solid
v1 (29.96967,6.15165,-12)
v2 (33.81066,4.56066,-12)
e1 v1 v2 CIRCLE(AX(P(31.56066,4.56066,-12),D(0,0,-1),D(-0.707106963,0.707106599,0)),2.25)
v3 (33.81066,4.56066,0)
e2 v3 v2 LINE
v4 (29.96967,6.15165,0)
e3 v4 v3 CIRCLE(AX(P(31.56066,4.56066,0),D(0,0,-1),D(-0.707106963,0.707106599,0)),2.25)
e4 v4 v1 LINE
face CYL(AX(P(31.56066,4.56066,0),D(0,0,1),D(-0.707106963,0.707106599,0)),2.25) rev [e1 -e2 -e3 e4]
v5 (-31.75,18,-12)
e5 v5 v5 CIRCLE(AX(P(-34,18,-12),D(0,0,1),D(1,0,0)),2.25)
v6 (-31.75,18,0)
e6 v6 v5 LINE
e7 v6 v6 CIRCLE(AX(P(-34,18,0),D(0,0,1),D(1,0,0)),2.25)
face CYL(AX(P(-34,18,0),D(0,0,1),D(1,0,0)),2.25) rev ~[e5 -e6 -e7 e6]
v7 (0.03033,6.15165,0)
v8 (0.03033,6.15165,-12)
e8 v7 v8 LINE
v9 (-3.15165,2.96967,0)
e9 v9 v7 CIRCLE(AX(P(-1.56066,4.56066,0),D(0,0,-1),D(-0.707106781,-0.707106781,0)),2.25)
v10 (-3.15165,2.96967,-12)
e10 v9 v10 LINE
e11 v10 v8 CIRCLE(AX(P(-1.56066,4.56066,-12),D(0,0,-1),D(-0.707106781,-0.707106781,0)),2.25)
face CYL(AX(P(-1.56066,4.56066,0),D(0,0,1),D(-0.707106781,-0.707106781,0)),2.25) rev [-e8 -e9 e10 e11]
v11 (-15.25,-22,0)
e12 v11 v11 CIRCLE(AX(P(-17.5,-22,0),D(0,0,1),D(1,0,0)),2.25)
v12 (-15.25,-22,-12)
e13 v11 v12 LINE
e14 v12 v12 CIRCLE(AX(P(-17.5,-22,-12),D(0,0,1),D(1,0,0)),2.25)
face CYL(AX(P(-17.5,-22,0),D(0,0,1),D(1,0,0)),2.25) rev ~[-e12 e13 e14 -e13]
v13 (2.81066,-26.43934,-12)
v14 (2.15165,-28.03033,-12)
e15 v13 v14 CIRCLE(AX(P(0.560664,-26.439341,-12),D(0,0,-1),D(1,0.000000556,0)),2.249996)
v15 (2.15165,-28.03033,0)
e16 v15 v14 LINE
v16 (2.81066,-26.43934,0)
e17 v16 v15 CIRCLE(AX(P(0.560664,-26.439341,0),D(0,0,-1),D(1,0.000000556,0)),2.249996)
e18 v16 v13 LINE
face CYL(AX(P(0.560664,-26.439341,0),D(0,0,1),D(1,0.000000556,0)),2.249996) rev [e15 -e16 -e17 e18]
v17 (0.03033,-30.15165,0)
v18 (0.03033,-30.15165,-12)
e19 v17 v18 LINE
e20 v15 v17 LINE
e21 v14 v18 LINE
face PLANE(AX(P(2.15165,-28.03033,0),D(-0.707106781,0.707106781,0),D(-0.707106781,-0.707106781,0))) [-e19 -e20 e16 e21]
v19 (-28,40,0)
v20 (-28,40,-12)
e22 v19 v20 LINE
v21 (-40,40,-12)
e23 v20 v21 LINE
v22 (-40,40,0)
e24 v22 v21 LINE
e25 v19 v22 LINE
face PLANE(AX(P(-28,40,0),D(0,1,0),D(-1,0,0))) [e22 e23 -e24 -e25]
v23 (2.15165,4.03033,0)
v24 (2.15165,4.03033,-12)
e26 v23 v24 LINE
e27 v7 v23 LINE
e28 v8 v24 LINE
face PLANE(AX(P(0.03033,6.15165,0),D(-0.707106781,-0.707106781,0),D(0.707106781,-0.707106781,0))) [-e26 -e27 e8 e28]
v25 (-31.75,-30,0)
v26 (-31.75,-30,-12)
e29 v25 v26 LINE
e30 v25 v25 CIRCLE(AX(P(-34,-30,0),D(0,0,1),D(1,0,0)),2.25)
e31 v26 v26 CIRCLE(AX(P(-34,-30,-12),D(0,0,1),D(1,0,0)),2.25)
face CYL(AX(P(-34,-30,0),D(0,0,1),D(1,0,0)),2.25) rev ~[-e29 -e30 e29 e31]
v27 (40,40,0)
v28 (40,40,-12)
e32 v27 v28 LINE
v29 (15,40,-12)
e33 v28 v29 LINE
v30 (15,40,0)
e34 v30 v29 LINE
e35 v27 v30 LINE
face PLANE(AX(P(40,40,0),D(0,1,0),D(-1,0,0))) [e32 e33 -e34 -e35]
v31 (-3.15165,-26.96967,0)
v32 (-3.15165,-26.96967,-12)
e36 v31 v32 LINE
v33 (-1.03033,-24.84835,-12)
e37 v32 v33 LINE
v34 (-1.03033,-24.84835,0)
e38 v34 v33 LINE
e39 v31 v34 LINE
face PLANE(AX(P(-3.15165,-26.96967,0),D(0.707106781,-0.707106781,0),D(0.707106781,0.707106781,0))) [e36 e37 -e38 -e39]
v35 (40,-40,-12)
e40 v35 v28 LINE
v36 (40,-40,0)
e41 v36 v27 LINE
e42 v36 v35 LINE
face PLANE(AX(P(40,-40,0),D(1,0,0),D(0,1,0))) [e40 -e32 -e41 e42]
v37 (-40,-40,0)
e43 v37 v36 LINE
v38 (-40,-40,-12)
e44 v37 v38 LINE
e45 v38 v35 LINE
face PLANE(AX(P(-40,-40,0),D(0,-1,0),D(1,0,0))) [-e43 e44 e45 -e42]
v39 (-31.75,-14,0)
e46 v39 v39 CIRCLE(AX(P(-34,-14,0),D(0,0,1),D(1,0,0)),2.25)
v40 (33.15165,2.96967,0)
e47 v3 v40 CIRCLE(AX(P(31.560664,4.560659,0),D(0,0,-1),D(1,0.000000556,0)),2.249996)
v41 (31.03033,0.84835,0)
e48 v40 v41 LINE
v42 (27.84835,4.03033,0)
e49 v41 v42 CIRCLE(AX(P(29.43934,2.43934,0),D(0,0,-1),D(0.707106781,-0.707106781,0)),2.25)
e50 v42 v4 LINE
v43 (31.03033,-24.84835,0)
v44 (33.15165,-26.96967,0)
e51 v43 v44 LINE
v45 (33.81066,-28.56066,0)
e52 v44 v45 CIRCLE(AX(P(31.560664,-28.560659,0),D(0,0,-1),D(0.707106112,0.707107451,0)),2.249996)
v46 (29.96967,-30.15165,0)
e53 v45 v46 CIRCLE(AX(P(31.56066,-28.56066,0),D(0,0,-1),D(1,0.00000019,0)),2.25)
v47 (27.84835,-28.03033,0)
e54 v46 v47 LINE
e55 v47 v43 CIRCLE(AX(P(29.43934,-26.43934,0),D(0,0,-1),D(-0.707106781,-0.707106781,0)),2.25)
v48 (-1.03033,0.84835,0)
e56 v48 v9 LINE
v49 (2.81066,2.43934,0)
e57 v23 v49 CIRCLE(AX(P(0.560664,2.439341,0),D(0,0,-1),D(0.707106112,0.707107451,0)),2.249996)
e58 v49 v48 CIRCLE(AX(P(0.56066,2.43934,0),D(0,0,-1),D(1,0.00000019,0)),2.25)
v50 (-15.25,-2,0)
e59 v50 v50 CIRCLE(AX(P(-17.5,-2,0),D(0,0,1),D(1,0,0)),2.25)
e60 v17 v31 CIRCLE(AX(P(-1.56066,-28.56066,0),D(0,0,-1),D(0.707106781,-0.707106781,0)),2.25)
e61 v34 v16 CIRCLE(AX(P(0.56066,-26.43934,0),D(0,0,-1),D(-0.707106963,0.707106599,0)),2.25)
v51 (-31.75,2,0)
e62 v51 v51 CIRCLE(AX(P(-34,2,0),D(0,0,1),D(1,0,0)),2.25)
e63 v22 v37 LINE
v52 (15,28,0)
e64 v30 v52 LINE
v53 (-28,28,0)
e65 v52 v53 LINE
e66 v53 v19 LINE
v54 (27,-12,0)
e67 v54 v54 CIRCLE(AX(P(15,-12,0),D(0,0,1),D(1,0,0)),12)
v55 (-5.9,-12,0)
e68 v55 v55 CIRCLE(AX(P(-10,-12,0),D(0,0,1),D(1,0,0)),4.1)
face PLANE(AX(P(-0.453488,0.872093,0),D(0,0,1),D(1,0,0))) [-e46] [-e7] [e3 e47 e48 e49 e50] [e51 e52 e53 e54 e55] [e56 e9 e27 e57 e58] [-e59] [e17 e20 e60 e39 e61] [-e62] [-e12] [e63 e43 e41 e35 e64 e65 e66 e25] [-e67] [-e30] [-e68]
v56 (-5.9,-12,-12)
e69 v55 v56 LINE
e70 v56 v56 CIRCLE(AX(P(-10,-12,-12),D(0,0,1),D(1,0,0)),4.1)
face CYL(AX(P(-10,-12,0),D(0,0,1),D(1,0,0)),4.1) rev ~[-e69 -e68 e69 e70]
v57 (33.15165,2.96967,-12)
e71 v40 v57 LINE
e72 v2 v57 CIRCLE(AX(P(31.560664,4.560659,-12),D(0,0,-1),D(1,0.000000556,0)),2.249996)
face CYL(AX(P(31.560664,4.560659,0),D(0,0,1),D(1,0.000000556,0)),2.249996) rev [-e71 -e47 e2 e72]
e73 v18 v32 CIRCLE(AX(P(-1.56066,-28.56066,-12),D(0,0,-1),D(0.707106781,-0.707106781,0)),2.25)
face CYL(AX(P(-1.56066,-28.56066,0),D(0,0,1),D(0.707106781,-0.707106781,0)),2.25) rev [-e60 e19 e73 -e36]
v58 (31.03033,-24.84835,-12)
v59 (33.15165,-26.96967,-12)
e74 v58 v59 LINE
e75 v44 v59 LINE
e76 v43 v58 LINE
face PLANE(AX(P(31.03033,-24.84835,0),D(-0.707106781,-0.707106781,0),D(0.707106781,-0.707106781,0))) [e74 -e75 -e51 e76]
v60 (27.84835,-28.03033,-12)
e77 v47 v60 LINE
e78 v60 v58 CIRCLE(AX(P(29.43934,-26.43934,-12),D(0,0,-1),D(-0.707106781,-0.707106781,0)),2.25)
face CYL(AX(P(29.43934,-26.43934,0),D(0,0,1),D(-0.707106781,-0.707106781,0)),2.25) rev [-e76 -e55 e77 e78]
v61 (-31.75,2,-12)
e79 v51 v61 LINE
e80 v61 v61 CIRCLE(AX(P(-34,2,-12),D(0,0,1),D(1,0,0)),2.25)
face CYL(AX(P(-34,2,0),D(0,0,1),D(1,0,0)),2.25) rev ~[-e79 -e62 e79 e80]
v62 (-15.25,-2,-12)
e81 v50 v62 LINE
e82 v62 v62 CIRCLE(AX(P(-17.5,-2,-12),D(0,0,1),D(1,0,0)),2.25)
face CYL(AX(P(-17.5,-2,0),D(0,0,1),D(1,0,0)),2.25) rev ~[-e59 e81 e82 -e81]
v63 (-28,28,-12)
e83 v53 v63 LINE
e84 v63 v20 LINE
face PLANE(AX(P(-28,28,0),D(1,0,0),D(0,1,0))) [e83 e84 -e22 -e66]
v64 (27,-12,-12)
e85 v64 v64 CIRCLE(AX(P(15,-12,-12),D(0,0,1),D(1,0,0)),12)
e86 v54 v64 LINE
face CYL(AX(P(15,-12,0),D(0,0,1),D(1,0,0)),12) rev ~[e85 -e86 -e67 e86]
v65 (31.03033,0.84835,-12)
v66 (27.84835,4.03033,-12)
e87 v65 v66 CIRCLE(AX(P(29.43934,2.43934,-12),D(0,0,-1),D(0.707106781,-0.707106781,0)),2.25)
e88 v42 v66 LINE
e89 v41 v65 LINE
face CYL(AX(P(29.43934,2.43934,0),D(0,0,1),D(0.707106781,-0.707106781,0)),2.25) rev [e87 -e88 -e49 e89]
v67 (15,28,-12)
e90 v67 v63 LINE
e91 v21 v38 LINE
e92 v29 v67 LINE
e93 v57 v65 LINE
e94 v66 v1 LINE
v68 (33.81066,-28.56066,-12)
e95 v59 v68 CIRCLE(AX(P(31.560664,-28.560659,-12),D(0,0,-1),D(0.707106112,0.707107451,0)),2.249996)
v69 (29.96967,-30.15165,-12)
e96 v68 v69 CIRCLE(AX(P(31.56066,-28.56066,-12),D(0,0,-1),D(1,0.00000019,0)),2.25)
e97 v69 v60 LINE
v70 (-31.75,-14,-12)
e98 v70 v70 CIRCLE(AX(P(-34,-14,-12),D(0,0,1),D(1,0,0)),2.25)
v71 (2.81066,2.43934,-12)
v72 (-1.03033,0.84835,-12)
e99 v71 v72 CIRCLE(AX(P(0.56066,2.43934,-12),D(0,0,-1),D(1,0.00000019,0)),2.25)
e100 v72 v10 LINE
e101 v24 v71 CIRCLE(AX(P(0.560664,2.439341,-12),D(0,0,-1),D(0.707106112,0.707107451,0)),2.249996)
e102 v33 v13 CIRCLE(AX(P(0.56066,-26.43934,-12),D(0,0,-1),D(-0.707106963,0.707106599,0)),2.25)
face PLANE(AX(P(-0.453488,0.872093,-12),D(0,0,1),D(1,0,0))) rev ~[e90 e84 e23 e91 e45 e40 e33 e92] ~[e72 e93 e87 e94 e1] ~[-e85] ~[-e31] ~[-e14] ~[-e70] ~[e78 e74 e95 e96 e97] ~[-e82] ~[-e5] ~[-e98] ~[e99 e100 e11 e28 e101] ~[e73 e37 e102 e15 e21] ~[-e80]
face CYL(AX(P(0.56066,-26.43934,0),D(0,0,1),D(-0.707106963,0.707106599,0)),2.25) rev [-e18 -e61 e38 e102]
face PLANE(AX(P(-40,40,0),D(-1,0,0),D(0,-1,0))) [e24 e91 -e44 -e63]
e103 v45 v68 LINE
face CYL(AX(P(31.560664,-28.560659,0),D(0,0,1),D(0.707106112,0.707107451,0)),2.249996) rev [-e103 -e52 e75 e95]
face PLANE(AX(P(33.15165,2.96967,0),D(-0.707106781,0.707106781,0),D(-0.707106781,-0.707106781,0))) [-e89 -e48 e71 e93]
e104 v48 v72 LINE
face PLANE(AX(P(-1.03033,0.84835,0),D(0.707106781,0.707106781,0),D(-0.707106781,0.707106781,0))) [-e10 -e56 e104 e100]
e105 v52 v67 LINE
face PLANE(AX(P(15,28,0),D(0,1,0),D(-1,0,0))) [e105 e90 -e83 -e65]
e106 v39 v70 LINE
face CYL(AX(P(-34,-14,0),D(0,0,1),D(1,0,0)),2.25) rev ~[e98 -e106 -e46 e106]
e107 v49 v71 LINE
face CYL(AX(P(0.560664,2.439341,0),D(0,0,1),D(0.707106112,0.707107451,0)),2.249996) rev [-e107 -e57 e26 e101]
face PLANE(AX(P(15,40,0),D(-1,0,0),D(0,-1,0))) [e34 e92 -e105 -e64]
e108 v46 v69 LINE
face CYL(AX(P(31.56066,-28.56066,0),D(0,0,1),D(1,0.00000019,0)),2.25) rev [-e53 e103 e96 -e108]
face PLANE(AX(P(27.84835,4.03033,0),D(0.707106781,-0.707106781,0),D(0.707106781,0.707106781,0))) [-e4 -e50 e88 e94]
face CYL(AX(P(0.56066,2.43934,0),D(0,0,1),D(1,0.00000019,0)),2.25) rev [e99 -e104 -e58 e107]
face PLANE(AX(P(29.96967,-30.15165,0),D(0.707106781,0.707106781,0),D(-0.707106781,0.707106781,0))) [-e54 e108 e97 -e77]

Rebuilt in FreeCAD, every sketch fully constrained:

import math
import FreeCAD as App
import Part
import Sketcher
from FreeCAD import Vector
Q = App.Units.Quantity


def add_polygon(sketch, points):
    """Adds a closed chain of lines whose ends are joined by coincident constraints."""
    first, n = sketch.GeometryCount, len(points)
    for a, b in zip(points, points[1:] + points[:1]):
        sketch.addGeometry(Part.LineSegment(App.Vector(*a, 0), App.Vector(*b, 0)), False)
    for i in range(n):
        sketch.addConstraint(Sketcher.Constraint("Coincident", first + i, 2, first + (i + 1) % n, 1))

doc = App.newDocument("Part")
params = doc.addObject("Spreadsheet::Sheet", "Params")
for row, (alias, value) in enumerate([
    ("sketch1_diameter", "24 mm"),
    ("sketch1_diameter2", "4.5 mm"),
    ("sketch1_diameter3", "8.2 mm"),
    ("sketch1_width", "80 mm"),
    ("sketch1_width2", "25 mm"),
    ("pad1_length", "12 mm"),
], start=1):
    params.set(f"A{row}", alias)
    params.set(f"B{row}", "=" + value)
    params.setAlias(f"B{row}", alias)

body = doc.addObject("PartDesign::Body", "Body")

sketch1 = body.newObject("Sketcher::SketchObject", "Sketch")
sketch1.AttachmentSupport = (doc.getObject("XY_Plane"), [""])
sketch1.MapMode = "FlatFace"
add_polygon(sketch1, [(-40, 40), (-40, -40), (40, -40), (40, 40), (15, 40), (15, 28), (-28, 28), (-28, 40)])
sketch1.addGeometry(Part.Circle(Vector(-34, -30, 0), Vector(0, 0, 1), 2.2), False)
sketch1.addGeometry(Part.Circle(Vector(-17.5, -22, 0), Vector(0, 0, 1), 2.2), False)
sketch1.addGeometry(Part.Circle(Vector(-34, -14, 0), Vector(0, 0, 1), 2.2), False)
sketch1.addGeometry(Part.Circle(Vector(-10, -12, 0), Vector(0, 0, 1), 4.1), False)
sketch1.addGeometry(Part.LineSegment(Vector(-3.2, -27, 0), Vector(-1, -24.8, 0)), False)
sketch1.addGeometry(Part.ArcOfCircle(Part.Circle(Vector(0.6, -26.4, 0), Vector(0, 0, 1), 2.2), math.radians(0), math.radians(135)), False)
sketch1.addGeometry(Part.ArcOfCircle(Part.Circle(Vector(0.6, -26.4, 0), Vector(0, 0, 1), 2.2), math.radians(-45), math.radians(0)), False)
sketch1.addGeometry(Part.LineSegment(Vector(2.2, -28, 0), Vector(0, -30.2, 0)), False)
sketch1.addGeometry(Part.ArcOfCircle(Part.Circle(Vector(-1.6, -28.6, 0), Vector(0, 0, 1), 2.2), math.radians(135), math.radians(315)), False)
sketch1.addGeometry(Part.ArcOfCircle(Part.Circle(Vector(31.6, -28.6, 0), Vector(0, 0, 1), 2.2), math.radians(0), math.radians(45)), False)
sketch1.addGeometry(Part.ArcOfCircle(Part.Circle(Vector(31.6, -28.6, 0), Vector(0, 0, 1), 2.2), math.radians(-135), math.radians(0)), False)
sketch1.addGeometry(Part.LineSegment(Vector(30, -30.2, 0), Vector(27.8, -28, 0)), False)
sketch1.addGeometry(Part.ArcOfCircle(Part.Circle(Vector(29.4, -26.4, 0), Vector(0, 0, 1), 2.2), math.radians(45), math.radians(225)), False)
sketch1.addGeometry(Part.LineSegment(Vector(31, -24.8, 0), Vector(33.2, -27, 0)), False)
sketch1.addGeometry(Part.Circle(Vector(15, -12, 0), Vector(0, 0, 1), 12), False)
sketch1.addGeometry(Part.Circle(Vector(-34, 2, 0), Vector(0, 0, 1), 2.2), False)
sketch1.addGeometry(Part.Circle(Vector(-17.5, -2, 0), Vector(0, 0, 1), 2.2), False)
sketch1.addGeometry(Part.Circle(Vector(-34, 18, 0), Vector(0, 0, 1), 2.2), False)
sketch1.addGeometry(Part.LineSegment(Vector(-1, 0.8, 0), Vector(-3.2, 3, 0)), False)
sketch1.addGeometry(Part.ArcOfCircle(Part.Circle(Vector(-1.6, 4.6, 0), Vector(0, 0, 1), 2.2), math.radians(45), math.radians(225)), False)
sketch1.addGeometry(Part.LineSegment(Vector(0, 6.2, 0), Vector(2.2, 4, 0)), False)
sketch1.addGeometry(Part.ArcOfCircle(Part.Circle(Vector(0.6, 2.4, 0), Vector(0, 0, 1), 2.2), math.radians(0), math.radians(45)), False)
sketch1.addGeometry(Part.ArcOfCircle(Part.Circle(Vector(0.6, 2.4, 0), Vector(0, 0, 1), 2.2), math.radians(-135), math.radians(0)), False)
sketch1.addGeometry(Part.LineSegment(Vector(27.8, 4, 0), Vector(30, 6.2, 0)), False)
sketch1.addGeometry(Part.ArcOfCircle(Part.Circle(Vector(31.6, 4.6, 0), Vector(0, 0, 1), 2.2), math.radians(0), math.radians(135)), False)
sketch1.addGeometry(Part.ArcOfCircle(Part.Circle(Vector(31.6, 4.6, 0), Vector(0, 0, 1), 2.2), math.radians(-45), math.radians(0)), False)
sketch1.addGeometry(Part.LineSegment(Vector(33.2, 3, 0), Vector(31, 0.8, 0)), False)
sketch1.addGeometry(Part.ArcOfCircle(Part.Circle(Vector(29.4, 2.4, 0), Vector(0, 0, 1), 2.2), math.radians(135), math.radians(315)), False)
sketch1.addConstraint([
    Sketcher.Constraint("Tangent", 12, 2, 13, 2),
    Sketcher.Constraint("Tangent", 13, 1, 14, 2),
    Sketcher.Constraint("Tangent", 14, 1, 15, 1),
    Sketcher.Constraint("Tangent", 15, 2, 16, 2),
    Sketcher.Constraint("Tangent", 16, 1, 12, 1),
    Sketcher.Constraint("Tangent", 17, 1, 18, 2),
    Sketcher.Constraint("Tangent", 18, 1, 19, 1),
    Sketcher.Constraint("Tangent", 19, 2, 20, 2),
    Sketcher.Constraint("Tangent", 20, 1, 21, 1),
    Sketcher.Constraint("Tangent", 21, 2, 17, 2),
    Sketcher.Constraint("Tangent", 26, 2, 27, 2),
    Sketcher.Constraint("Tangent", 27, 1, 28, 1),
    Sketcher.Constraint("Tangent", 28, 2, 29, 2),
    Sketcher.Constraint("Tangent", 29, 1, 30, 2),
    Sketcher.Constraint("Tangent", 30, 1, 26, 1),
    Sketcher.Constraint("Tangent", 31, 2, 32, 2),
    Sketcher.Constraint("Tangent", 32, 1, 33, 2),
    Sketcher.Constraint("Tangent", 33, 1, 34, 1),
    Sketcher.Constraint("Tangent", 34, 2, 35, 2),
    Sketcher.Constraint("Tangent", 35, 1, 31, 1),
    Sketcher.Constraint("Vertical", 0),
    Sketcher.Constraint("Horizontal", 1),
    Sketcher.Constraint("Vertical", 2),
    Sketcher.Constraint("Horizontal", 3),
    Sketcher.Constraint("Vertical", 4),
    Sketcher.Constraint("Horizontal", 5),
    Sketcher.Constraint("Vertical", 6),
    Sketcher.Constraint("Horizontal", 7),
    Sketcher.Constraint("Equal", 8, 9),
    Sketcher.Constraint("Equal", 9, 10),
    Sketcher.Constraint("Equal", 10, 13),
    Sketcher.Constraint("Equal", 13, 16),
    Sketcher.Constraint("Equal", 14, 17),
    Sketcher.Constraint("Equal", 16, 18),
    Sketcher.Constraint("Equal", 18, 20),
    Sketcher.Constraint("Equal", 20, 23),
    Sketcher.Constraint("Equal", 23, 24),
    Sketcher.Constraint("Equal", 24, 25),
    Sketcher.Constraint("Equal", 25, 27),
    Sketcher.Constraint("Equal", 17, 29),
    Sketcher.Constraint("Equal", 27, 30),
    Sketcher.Constraint("Equal", 30, 32),
    Sketcher.Constraint("Equal", 29, 33),
    Sketcher.Constraint("Equal", 32, 35),
    Sketcher.Constraint("Symmetric", 0, 2, 2, 2, -1, 1),
    Sketcher.Constraint("Parallel", 12, 15),
    Sketcher.Constraint("Perpendicular", 15, 19),
    Sketcher.Constraint("Parallel", 21, 26),
    Sketcher.Constraint("Perpendicular", 28, 31),
    Sketcher.Constraint("Horizontal", 16, 3, 17, 3),
    Sketcher.Constraint("Horizontal", 14, 3, 20, 3),
    Sketcher.Constraint("Horizontal", 11, 3, 22, 3),
    Sketcher.Constraint("Horizontal", 27, 3, 32, 3),
    Sketcher.Constraint("Horizontal", 30, 3, 35, 3),
    Sketcher.Constraint("Horizontal", 3, 2, 6, 2),
    Sketcher.Constraint("Horizontal", 20, 3, 13, 1),
    Sketcher.Constraint("Horizontal", 18, 3, 17, 1),
    Sketcher.Constraint("Horizontal", 15, 2, 18, 1),
    Sketcher.Constraint("Horizontal", 35, 3, 29, 1),
    Sketcher.Constraint("Horizontal", 33, 3, 32, 1),
    Sketcher.Constraint("Vertical", 8, 3, 10, 3),
    Sketcher.Constraint("Vertical", 10, 3, 23, 3),
    Sketcher.Constraint("Vertical", 9, 3, 24, 3),
    Sketcher.Constraint("Vertical", 23, 3, 25, 3),
    Sketcher.Constraint("Vertical", 16, 3, 27, 3),
    Sketcher.Constraint("Vertical", 14, 3, 29, 3),
    Sketcher.Constraint("Vertical", 18, 3, 32, 3),
    Sketcher.Constraint("Vertical", 22, 3, 3, 2),
    Sketcher.Constraint("Equal", 1, 0),
    Sketcher.Constraint("Equal", 7, 4),
    Sketcher.Constraint("Diameter", 22, Q("24 mm")),
    Sketcher.Constraint("Diameter", 8, Q("4.5 mm")),
    Sketcher.Constraint("Diameter", 11, Q("8.2 mm")),
    Sketcher.Constraint("DistanceX", 1, 1, 1, 2, Q("80 mm")),
    Sketcher.Constraint("DistanceX", 3, 2, 3, 1, Q("25 mm")),
    Sketcher.Constraint("DistanceX", 5, 2, 5, 1, Q("43 mm")),
    Sketcher.Constraint("Distance", 12, Q("3 mm")),
    Sketcher.Constraint("DistanceX", 8, 3, -1, 1, Q("34 mm")),
    Sketcher.Constraint("DistanceY", 8, 3, -1, 1, Q("30 mm")),
    Sketcher.Constraint("DistanceY", 9, 3, -1, 1, Q("22 mm")),
    Sketcher.Constraint("DistanceY", 10, 3, -1, 1, Q("14 mm")),
    Sketcher.Constraint("DistanceX", 11, 3, -1, 1, Q("10 mm")),
    Sketcher.Constraint("DistanceY", 11, 3, -1, 1, Q("12 mm")),
    Sketcher.Constraint("DistanceY", -1, 1, 23, 3, Q("2 mm")),
    Sketcher.Constraint("DistanceY", 24, 3, -1, 1, Q("2 mm")),
    Sketcher.Constraint("DistanceY", -1, 1, 25, 3, Q("18 mm")),
    Sketcher.Constraint("DistanceX", 14, 3, 17, 3, Q("31 mm")),
    Sketcher.Constraint("DistanceY", 13, 3, 27, 3, Q("31 mm")),
    Sketcher.Constraint("DistanceX", 9, 3, -1, 1, Q("17.5 mm")),
    Sketcher.Constraint("DistanceX", -1, 1, 13, 3, Q("0.56066 mm")),
    Sketcher.Constraint("DistanceY", 13, 3, -1, 1, Q("26.43934 mm")),
])
sketch1.setExpression("Constraints[78]", "Params.sketch1_diameter")
sketch1.setExpression("Constraints[79]", "Params.sketch1_diameter2")
sketch1.setExpression("Constraints[80]", "Params.sketch1_diameter3")
sketch1.setExpression("Constraints[81]", "Params.sketch1_width")
sketch1.setExpression("Constraints[82]", "Params.sketch1_width2")
pad1 = body.newObject("PartDesign::Pad", "Pad")
pad1.Profile = sketch1
pad1.setExpression("Length", "Params.pad1_length")
pad1.Reversed = True

doc.recompute()
